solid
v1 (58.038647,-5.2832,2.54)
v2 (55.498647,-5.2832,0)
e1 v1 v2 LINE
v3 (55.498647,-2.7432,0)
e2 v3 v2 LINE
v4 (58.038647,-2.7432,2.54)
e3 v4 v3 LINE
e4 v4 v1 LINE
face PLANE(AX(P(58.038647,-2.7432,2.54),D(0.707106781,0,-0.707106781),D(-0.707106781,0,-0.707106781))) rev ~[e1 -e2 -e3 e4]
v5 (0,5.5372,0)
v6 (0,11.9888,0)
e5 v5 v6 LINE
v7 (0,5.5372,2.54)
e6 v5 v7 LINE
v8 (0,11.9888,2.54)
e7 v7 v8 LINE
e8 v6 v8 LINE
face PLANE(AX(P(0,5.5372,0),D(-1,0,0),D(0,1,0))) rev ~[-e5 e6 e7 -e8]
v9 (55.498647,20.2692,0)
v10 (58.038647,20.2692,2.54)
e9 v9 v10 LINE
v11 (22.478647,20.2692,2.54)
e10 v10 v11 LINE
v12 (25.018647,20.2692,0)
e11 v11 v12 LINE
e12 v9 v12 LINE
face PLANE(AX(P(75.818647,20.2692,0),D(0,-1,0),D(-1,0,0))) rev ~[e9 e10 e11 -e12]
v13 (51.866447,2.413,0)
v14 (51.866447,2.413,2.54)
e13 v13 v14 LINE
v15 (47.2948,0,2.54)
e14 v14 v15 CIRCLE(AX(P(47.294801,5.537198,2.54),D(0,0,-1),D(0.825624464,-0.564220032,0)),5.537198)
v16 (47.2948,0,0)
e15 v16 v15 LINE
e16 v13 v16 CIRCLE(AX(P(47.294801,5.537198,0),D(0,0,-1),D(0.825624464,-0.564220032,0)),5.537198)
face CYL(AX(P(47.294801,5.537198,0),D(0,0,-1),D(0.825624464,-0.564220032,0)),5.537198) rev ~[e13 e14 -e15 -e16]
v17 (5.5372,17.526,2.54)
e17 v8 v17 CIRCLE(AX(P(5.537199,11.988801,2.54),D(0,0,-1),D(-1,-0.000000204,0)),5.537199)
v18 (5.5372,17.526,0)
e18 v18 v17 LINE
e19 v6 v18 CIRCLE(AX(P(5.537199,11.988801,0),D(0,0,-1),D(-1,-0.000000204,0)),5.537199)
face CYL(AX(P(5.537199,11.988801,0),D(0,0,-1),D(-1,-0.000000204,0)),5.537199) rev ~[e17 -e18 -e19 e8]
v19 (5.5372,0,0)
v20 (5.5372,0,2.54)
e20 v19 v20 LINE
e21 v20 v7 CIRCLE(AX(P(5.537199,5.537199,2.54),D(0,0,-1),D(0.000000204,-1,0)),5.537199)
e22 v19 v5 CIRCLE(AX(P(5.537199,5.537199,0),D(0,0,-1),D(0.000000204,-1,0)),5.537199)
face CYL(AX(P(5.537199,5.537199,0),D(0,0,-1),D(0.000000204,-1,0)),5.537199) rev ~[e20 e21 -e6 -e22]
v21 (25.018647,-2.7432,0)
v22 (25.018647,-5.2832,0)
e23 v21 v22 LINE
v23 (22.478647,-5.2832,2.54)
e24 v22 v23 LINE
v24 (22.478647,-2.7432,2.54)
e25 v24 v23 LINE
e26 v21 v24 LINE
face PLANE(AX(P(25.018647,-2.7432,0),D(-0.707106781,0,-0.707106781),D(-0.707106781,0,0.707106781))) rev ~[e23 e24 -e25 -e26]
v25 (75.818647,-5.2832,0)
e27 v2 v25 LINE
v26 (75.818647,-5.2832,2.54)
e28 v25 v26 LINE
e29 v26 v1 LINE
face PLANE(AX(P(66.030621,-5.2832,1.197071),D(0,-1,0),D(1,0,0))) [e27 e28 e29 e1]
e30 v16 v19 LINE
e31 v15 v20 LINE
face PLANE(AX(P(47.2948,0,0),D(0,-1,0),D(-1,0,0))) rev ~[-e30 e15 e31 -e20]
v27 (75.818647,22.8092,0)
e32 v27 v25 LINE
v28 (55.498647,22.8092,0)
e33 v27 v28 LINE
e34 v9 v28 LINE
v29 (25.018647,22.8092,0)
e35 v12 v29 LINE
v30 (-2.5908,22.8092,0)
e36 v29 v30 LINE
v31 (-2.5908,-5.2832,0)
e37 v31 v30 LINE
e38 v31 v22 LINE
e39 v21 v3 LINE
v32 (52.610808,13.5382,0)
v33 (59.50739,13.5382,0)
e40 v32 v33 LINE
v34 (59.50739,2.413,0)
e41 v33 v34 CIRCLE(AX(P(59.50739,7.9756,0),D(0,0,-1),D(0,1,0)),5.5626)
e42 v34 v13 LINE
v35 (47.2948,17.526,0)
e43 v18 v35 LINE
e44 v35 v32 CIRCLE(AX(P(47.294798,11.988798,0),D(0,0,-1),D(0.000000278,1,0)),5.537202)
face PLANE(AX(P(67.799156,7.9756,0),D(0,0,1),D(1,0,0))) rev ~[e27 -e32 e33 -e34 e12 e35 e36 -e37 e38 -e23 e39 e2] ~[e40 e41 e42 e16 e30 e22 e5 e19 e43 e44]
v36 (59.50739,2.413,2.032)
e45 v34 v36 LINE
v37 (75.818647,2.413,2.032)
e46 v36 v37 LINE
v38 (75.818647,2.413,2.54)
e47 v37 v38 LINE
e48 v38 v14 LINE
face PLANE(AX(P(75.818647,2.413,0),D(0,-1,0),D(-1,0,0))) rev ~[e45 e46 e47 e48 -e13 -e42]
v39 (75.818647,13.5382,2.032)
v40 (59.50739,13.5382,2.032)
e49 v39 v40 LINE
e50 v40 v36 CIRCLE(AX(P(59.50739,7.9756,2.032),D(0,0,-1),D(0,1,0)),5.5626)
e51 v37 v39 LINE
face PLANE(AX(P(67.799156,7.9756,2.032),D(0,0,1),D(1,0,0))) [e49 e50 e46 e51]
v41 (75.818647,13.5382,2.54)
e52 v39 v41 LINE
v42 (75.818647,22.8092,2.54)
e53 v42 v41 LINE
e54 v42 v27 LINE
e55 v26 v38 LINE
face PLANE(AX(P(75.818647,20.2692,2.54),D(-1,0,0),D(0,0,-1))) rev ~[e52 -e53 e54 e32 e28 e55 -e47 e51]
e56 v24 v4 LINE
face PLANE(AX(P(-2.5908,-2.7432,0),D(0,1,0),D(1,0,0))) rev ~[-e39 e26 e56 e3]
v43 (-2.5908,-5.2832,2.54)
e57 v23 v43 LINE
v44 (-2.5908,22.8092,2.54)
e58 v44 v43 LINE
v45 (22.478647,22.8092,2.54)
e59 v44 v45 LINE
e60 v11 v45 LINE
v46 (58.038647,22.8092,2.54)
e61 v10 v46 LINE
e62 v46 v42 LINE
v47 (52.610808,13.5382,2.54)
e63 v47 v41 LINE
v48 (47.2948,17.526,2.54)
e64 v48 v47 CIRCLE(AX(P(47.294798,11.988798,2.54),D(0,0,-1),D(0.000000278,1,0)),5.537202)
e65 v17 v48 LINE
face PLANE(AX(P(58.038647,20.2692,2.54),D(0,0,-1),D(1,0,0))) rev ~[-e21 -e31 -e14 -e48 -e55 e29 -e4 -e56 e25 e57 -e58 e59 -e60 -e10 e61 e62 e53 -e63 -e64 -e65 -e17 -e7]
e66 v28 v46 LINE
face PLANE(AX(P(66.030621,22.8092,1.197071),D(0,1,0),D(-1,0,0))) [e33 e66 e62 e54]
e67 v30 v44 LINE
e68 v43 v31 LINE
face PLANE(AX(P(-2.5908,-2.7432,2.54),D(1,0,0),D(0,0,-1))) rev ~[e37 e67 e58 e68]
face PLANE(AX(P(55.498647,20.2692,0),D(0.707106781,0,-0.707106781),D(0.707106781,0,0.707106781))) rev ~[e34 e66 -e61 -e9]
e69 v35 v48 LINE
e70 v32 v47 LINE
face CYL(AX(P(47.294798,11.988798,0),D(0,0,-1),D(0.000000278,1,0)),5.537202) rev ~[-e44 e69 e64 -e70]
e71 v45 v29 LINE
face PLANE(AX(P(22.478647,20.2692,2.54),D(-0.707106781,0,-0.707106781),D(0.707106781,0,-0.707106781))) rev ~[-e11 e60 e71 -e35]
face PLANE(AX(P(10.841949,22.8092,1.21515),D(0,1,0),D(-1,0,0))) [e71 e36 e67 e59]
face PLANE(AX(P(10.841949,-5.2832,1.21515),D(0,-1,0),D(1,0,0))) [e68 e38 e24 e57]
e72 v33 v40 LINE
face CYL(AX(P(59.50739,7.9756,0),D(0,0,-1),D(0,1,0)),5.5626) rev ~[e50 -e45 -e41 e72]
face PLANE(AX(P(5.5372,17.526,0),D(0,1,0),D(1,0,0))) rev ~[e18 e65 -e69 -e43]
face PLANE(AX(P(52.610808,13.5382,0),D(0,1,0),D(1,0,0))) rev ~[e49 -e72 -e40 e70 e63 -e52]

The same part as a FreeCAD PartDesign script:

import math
import FreeCAD as App
import Part
import Sketcher
Q = App.Units.Quantity


def add_polygon(sketch, points):
    """Adds a closed chain of lines whose ends are joined by coincident constraints."""
    first, n = sketch.GeometryCount, len(points)
    for a, b in zip(points, points[1:] + points[:1]):
        sketch.addGeometry(Part.LineSegment(App.Vector(*a, 0), App.Vector(*b, 0)), False)
    for i in range(n):
        sketch.addConstraint(Sketcher.Constraint("Coincident", first + i, 2, first + (i + 1) % n, 1))

doc = App.newDocument("Part")
body = doc.addObject("PartDesign::Body", "Body")

# Sketch on XY plane
sketch1 = body.newObject("Sketcher::SketchObject", "Sketch")
sketch1.AttachmentSupport = (doc.getObject("XY_Plane"), [""])
sketch1.MapMode = "FlatFace"
sketch1.addGeometry([
    Part.ArcOfCircle(Part.Circle(App.Vector(5.537199, 5.537199, 0), App.Vector(0, 0, 1), 5.537199), math.radians(179.999988), math.radians(270.000012)),  # 0
    Part.LineSegment(App.Vector(0, 5.5372, 0), App.Vector(0, 11.9888, 0)),  # 1
    Part.ArcOfCircle(Part.Circle(App.Vector(5.537199, 11.988801, 0), App.Vector(0, 0, 1), 5.537199), math.radians(89.999988), math.radians(180.000012)),  # 2
    Part.LineSegment(App.Vector(5.5372, 17.526, 0), App.Vector(47.2948, 17.526, 0)),  # 3
    Part.ArcOfCircle(Part.Circle(App.Vector(47.294798, 11.988798, 0), App.Vector(0, 0, 1), 5.537202), math.radians(16.249268), math.radians(89.999984)),  # 4
    Part.LineSegment(App.Vector(52.610808, 13.5382, 0), App.Vector(75.818647, 13.5382, 0)),  # 5
    Part.LineSegment(App.Vector(75.818647, 13.5382, 0), App.Vector(75.818647, 20.2692, 0)),  # 6
    Part.LineSegment(App.Vector(75.818647, 20.2692, 0), App.Vector(-2.5908, 20.2692, 0)),  # 7
    Part.LineSegment(App.Vector(-2.5908, 20.2692, 0), App.Vector(-2.5908, -2.7432, 0)),  # 8
    Part.LineSegment(App.Vector(-2.5908, -2.7432, 0), App.Vector(75.818647, -2.7432, 0)),  # 9
    Part.LineSegment(App.Vector(75.818647, -2.7432, 0), App.Vector(75.818647, 2.413, 0)),  # 10
    Part.LineSegment(App.Vector(75.818647, 2.413, 0), App.Vector(51.866447, 2.413, 0)),  # 11
    Part.ArcOfCircle(Part.Circle(App.Vector(47.294801, 5.537198, 0), App.Vector(0, 0, 1), 5.537198), math.radians(-90.000008), math.radians(-34.348146)),  # 12
    Part.LineSegment(App.Vector(47.2948, 0, 0), App.Vector(5.5372, 0, 0)),  # 13
], False)
sketch1.addConstraint([
    Sketcher.Constraint("Tangent", 0, 1, 1, 1),
    Sketcher.Constraint("Tangent", 1, 2, 2, 2),
    Sketcher.Constraint("Tangent", 2, 1, 3, 1),
    Sketcher.Constraint("Tangent", 3, 2, 4, 2),
    Sketcher.Constraint("Coincident", 4, 1, 5, 1),
    Sketcher.Constraint("Coincident", 5, 2, 6, 1),
    Sketcher.Constraint("Coincident", 6, 2, 7, 1),
    Sketcher.Constraint("Coincident", 7, 2, 8, 1),
    Sketcher.Constraint("Coincident", 8, 2, 9, 1),
    Sketcher.Constraint("Coincident", 9, 2, 10, 1),
    Sketcher.Constraint("Coincident", 10, 2, 11, 1),
    Sketcher.Constraint("Coincident", 11, 2, 12, 2),
    Sketcher.Constraint("Tangent", 12, 1, 13, 1),
    Sketcher.Constraint("Tangent", 13, 2, 0, 2),
    Sketcher.Constraint("Vertical", 1),
    Sketcher.Constraint("Horizontal", 3),
    Sketcher.Constraint("Horizontal", 5),
    Sketcher.Constraint("Vertical", 6),
    Sketcher.Constraint("Horizontal", 7),
    Sketcher.Constraint("Vertical", 8),
    Sketcher.Constraint("Horizontal", 9),
    Sketcher.Constraint("Vertical", 10),
    Sketcher.Constraint("Horizontal", 11),
    Sketcher.Constraint("Horizontal", 13),
    Sketcher.Constraint("Equal", 0, 2),
    Sketcher.Constraint("Equal", 2, 12),
    Sketcher.Constraint("PointOnObject", 0, 1, -2),
    Sketcher.Constraint("PointOnObject", 12, 1, -1),
    Sketcher.Constraint("Horizontal", 4, 3, 1, 2),
    Sketcher.Constraint("Vertical", 12, 3, 3, 2),
    Sketcher.Constraint("Vertical", 6, 2, 9, 2),
    Sketcher.Constraint("Radius", 0, Q("0.218 in")),
    Sketcher.Constraint("DistanceX", 3, 1, 3, 2, Q("1.644 in")),
    Sketcher.Constraint("DistanceX", 11, 2, 11, 1, Q("0.943 in")),
    Sketcher.Constraint("DistanceY", 1, 1, 1, 2, Q("0.254 in")),
    Sketcher.Constraint("DistanceY", 6, 1, 6, 2, Q("0.265 in")),
    Sketcher.Constraint("DistanceY", 8, 2, 8, 1, Q("0.906 in")),
    Sketcher.Constraint("DistanceY", 10, 1, 10, 2, Q("0.203 in")),
    Sketcher.Constraint("DistanceY", 12, 3, 6, 2, Q("0.5800001 in")),
    Sketcher.Constraint("DistanceX", 7, 2, 2, 1, Q("0.32 in")),
])
pad1 = body.newObject("PartDesign::Pad", "Pad")
pad1.Profile = sketch1
pad1.Length = Q("0.1 in")

# Sketch on XZ plane
sketch2 = body.newObject("Sketcher::SketchObject", "Sketch001")
sketch2.AttachmentSupport = (doc.getObject("XZ_Plane"), [""])
sketch2.MapMode = "FlatFace"
sketch2.AttachmentOffset = App.Placement(App.Vector(0, 0, 0.108 * 25.4), App.Rotation())
add_polygon(sketch2, [(-2.5908, 0), (25.018647, 0), (22.478647, 2.54), (-2.5908, 2.54)])  # lines 0-3
add_polygon(sketch2, [(58.038647, 2.54), (55.498647, 0), (75.818647, 0), (75.818647, 2.54)])  # lines 4-7
sketch2.addConstraint([
    Sketcher.Constraint("Horizontal", 0),
    Sketcher.Constraint("Horizontal", 2),
    Sketcher.Constraint("Vertical", 3),
    Sketcher.Constraint("Horizontal", 5),
    Sketcher.Constraint("Vertical", 6),
    Sketcher.Constraint("Horizontal", 7),
    Sketcher.Constraint("PointOnObject", 0, 2, -1),
    Sketcher.Constraint("PointOnObject", 4, 2, -1),
    Sketcher.Constraint("Perpendicular", 1, 4),
    Sketcher.Constraint("Horizontal", 2, 2, 6, 2),
    Sketcher.Constraint("Equal", 1, 4),
    Sketcher.Constraint("DistanceX", 5, 1, 5, 2, Q("0.8 in")),
    Sketcher.Constraint("DistanceX", 7, 2, 7, 1, Q("0.7 in")),
    Sketcher.Constraint("DistanceX", 0, 2, 5, 2, Q("2 in")),
    Sketcher.Constraint("DistanceX", 2, 2, -1, 1, Q("0.102 in")),
    Sketcher.Constraint("DistanceX", 0, 1, 0, 2, Q("27.609447 mm")),
])
pad2 = body.newObject("PartDesign::Pad", "Pad001")
pad2.Profile = sketch2
pad2.Length = Q("0.1 in")

# Sketch on XZ plane
sketch3 = body.newObject("Sketcher::SketchObject", "Sketch002")
sketch3.AttachmentSupport = (doc.getObject("XZ_Plane"), [""])
sketch3.MapMode = "FlatFace"
sketch3.AttachmentOffset = App.Placement(App.Vector(0, 0, -0.798 * 25.4), App.Rotation())
add_polygon(sketch3, [(75.818647, 0), (55.498647, 0), (58.038647, 2.54), (75.818647, 2.54)])  # lines 0-3
add_polygon(sketch3, [(22.478647, 2.54), (25.018647, 0), (-2.5908, 0), (-2.5908, 2.54)])  # lines 4-7
sketch3.addConstraint([
    Sketcher.Constraint("Horizontal", 0),
    Sketcher.Constraint("Horizontal", 2),
    Sketcher.Constraint("Vertical", 3),
    Sketcher.Constraint("Horizontal", 5),
    Sketcher.Constraint("Vertical", 6),
    Sketcher.Constraint("Horizontal", 7),
    Sketcher.Constraint("PointOnObject", 0, 2, -1),
    Sketcher.Constraint("PointOnObject", 4, 2, -1),
    Sketcher.Constraint("Perpendicular", 1, 4),
    Sketcher.Constraint("Horizontal", 2, 2, 6, 2),
    Sketcher.Constraint("Equal", 1, 4),
    Sketcher.Constraint("DistanceX", 0, 2, 0, 1, Q("0.8 in")),
    Sketcher.Constraint("DistanceX", 2, 1, 2, 2, Q("0.7 in")),
    Sketcher.Constraint("DistanceX", 4, 2, 3, 2, Q("2 in")),
    Sketcher.Constraint("DistanceX", 5, 2, -1, 1, Q("0.102 in")),
    Sketcher.Constraint("DistanceX", 5, 2, 5, 1, Q("27.609447 mm")),
])
pad3 = body.newObject("PartDesign::Pad", "Pad002")
pad3.Profile = sketch3
pad3.Length = Q("0.1 in")
pad3.Reversed = True

# Sketch on XY plane
sketch4 = body.newObject("Sketcher::SketchObject", "Sketch003")
sketch4.AttachmentSupport = (doc.getObject("XY_Plane"), [""])
sketch4.MapMode = "FlatFace"
sketch4.addGeometry([
    Part.ArcOfCircle(Part.Circle(App.Vector(59.50739, 7.9756, 0), App.Vector(0, 0, 1), 5.5626), math.radians(-90), math.radians(90)),
    Part.LineSegment(App.Vector(59.50739, 2.413, 0), App.Vector(75.818647, 2.413, 0)),
    Part.LineSegment(App.Vector(75.818647, 2.413, 0), App.Vector(75.818647, 13.5382, 0)),
    Part.LineSegment(App.Vector(75.818647, 13.5382, 0), App.Vector(59.50739, 13.5382, 0)),
], False)
sketch4.addConstraint([
    Sketcher.Constraint("Tangent", 0, 1, 1, 1),
    Sketcher.Constraint("Coincident", 1, 2, 2, 1),
    Sketcher.Constraint("Coincident", 2, 2, 3, 1),
    Sketcher.Constraint("Tangent", 3, 2, 0, 2),
    Sketcher.Constraint("Horizontal", 1),
    Sketcher.Constraint("Vertical", 2),
    Sketcher.Constraint("Horizontal", 3),
    Sketcher.Constraint("Radius", 0, Q("0.219 in")),
    Sketcher.Constraint("DistanceY", -1, 1, 0, 3, Q("0.314 in")),
    Sketcher.Constraint("DistanceX", 1, 1, 1, 2, Q("16.311257 mm")),
    Sketcher.Constraint("DistanceX", -1, 1, 0, 3, Q("59.50739 mm")),
])
pad4 = body.newObject("PartDesign::Pad", "Pad003")
pad4.Profile = sketch4
pad4.Length = Q("0.08 in")

doc.recompute()
